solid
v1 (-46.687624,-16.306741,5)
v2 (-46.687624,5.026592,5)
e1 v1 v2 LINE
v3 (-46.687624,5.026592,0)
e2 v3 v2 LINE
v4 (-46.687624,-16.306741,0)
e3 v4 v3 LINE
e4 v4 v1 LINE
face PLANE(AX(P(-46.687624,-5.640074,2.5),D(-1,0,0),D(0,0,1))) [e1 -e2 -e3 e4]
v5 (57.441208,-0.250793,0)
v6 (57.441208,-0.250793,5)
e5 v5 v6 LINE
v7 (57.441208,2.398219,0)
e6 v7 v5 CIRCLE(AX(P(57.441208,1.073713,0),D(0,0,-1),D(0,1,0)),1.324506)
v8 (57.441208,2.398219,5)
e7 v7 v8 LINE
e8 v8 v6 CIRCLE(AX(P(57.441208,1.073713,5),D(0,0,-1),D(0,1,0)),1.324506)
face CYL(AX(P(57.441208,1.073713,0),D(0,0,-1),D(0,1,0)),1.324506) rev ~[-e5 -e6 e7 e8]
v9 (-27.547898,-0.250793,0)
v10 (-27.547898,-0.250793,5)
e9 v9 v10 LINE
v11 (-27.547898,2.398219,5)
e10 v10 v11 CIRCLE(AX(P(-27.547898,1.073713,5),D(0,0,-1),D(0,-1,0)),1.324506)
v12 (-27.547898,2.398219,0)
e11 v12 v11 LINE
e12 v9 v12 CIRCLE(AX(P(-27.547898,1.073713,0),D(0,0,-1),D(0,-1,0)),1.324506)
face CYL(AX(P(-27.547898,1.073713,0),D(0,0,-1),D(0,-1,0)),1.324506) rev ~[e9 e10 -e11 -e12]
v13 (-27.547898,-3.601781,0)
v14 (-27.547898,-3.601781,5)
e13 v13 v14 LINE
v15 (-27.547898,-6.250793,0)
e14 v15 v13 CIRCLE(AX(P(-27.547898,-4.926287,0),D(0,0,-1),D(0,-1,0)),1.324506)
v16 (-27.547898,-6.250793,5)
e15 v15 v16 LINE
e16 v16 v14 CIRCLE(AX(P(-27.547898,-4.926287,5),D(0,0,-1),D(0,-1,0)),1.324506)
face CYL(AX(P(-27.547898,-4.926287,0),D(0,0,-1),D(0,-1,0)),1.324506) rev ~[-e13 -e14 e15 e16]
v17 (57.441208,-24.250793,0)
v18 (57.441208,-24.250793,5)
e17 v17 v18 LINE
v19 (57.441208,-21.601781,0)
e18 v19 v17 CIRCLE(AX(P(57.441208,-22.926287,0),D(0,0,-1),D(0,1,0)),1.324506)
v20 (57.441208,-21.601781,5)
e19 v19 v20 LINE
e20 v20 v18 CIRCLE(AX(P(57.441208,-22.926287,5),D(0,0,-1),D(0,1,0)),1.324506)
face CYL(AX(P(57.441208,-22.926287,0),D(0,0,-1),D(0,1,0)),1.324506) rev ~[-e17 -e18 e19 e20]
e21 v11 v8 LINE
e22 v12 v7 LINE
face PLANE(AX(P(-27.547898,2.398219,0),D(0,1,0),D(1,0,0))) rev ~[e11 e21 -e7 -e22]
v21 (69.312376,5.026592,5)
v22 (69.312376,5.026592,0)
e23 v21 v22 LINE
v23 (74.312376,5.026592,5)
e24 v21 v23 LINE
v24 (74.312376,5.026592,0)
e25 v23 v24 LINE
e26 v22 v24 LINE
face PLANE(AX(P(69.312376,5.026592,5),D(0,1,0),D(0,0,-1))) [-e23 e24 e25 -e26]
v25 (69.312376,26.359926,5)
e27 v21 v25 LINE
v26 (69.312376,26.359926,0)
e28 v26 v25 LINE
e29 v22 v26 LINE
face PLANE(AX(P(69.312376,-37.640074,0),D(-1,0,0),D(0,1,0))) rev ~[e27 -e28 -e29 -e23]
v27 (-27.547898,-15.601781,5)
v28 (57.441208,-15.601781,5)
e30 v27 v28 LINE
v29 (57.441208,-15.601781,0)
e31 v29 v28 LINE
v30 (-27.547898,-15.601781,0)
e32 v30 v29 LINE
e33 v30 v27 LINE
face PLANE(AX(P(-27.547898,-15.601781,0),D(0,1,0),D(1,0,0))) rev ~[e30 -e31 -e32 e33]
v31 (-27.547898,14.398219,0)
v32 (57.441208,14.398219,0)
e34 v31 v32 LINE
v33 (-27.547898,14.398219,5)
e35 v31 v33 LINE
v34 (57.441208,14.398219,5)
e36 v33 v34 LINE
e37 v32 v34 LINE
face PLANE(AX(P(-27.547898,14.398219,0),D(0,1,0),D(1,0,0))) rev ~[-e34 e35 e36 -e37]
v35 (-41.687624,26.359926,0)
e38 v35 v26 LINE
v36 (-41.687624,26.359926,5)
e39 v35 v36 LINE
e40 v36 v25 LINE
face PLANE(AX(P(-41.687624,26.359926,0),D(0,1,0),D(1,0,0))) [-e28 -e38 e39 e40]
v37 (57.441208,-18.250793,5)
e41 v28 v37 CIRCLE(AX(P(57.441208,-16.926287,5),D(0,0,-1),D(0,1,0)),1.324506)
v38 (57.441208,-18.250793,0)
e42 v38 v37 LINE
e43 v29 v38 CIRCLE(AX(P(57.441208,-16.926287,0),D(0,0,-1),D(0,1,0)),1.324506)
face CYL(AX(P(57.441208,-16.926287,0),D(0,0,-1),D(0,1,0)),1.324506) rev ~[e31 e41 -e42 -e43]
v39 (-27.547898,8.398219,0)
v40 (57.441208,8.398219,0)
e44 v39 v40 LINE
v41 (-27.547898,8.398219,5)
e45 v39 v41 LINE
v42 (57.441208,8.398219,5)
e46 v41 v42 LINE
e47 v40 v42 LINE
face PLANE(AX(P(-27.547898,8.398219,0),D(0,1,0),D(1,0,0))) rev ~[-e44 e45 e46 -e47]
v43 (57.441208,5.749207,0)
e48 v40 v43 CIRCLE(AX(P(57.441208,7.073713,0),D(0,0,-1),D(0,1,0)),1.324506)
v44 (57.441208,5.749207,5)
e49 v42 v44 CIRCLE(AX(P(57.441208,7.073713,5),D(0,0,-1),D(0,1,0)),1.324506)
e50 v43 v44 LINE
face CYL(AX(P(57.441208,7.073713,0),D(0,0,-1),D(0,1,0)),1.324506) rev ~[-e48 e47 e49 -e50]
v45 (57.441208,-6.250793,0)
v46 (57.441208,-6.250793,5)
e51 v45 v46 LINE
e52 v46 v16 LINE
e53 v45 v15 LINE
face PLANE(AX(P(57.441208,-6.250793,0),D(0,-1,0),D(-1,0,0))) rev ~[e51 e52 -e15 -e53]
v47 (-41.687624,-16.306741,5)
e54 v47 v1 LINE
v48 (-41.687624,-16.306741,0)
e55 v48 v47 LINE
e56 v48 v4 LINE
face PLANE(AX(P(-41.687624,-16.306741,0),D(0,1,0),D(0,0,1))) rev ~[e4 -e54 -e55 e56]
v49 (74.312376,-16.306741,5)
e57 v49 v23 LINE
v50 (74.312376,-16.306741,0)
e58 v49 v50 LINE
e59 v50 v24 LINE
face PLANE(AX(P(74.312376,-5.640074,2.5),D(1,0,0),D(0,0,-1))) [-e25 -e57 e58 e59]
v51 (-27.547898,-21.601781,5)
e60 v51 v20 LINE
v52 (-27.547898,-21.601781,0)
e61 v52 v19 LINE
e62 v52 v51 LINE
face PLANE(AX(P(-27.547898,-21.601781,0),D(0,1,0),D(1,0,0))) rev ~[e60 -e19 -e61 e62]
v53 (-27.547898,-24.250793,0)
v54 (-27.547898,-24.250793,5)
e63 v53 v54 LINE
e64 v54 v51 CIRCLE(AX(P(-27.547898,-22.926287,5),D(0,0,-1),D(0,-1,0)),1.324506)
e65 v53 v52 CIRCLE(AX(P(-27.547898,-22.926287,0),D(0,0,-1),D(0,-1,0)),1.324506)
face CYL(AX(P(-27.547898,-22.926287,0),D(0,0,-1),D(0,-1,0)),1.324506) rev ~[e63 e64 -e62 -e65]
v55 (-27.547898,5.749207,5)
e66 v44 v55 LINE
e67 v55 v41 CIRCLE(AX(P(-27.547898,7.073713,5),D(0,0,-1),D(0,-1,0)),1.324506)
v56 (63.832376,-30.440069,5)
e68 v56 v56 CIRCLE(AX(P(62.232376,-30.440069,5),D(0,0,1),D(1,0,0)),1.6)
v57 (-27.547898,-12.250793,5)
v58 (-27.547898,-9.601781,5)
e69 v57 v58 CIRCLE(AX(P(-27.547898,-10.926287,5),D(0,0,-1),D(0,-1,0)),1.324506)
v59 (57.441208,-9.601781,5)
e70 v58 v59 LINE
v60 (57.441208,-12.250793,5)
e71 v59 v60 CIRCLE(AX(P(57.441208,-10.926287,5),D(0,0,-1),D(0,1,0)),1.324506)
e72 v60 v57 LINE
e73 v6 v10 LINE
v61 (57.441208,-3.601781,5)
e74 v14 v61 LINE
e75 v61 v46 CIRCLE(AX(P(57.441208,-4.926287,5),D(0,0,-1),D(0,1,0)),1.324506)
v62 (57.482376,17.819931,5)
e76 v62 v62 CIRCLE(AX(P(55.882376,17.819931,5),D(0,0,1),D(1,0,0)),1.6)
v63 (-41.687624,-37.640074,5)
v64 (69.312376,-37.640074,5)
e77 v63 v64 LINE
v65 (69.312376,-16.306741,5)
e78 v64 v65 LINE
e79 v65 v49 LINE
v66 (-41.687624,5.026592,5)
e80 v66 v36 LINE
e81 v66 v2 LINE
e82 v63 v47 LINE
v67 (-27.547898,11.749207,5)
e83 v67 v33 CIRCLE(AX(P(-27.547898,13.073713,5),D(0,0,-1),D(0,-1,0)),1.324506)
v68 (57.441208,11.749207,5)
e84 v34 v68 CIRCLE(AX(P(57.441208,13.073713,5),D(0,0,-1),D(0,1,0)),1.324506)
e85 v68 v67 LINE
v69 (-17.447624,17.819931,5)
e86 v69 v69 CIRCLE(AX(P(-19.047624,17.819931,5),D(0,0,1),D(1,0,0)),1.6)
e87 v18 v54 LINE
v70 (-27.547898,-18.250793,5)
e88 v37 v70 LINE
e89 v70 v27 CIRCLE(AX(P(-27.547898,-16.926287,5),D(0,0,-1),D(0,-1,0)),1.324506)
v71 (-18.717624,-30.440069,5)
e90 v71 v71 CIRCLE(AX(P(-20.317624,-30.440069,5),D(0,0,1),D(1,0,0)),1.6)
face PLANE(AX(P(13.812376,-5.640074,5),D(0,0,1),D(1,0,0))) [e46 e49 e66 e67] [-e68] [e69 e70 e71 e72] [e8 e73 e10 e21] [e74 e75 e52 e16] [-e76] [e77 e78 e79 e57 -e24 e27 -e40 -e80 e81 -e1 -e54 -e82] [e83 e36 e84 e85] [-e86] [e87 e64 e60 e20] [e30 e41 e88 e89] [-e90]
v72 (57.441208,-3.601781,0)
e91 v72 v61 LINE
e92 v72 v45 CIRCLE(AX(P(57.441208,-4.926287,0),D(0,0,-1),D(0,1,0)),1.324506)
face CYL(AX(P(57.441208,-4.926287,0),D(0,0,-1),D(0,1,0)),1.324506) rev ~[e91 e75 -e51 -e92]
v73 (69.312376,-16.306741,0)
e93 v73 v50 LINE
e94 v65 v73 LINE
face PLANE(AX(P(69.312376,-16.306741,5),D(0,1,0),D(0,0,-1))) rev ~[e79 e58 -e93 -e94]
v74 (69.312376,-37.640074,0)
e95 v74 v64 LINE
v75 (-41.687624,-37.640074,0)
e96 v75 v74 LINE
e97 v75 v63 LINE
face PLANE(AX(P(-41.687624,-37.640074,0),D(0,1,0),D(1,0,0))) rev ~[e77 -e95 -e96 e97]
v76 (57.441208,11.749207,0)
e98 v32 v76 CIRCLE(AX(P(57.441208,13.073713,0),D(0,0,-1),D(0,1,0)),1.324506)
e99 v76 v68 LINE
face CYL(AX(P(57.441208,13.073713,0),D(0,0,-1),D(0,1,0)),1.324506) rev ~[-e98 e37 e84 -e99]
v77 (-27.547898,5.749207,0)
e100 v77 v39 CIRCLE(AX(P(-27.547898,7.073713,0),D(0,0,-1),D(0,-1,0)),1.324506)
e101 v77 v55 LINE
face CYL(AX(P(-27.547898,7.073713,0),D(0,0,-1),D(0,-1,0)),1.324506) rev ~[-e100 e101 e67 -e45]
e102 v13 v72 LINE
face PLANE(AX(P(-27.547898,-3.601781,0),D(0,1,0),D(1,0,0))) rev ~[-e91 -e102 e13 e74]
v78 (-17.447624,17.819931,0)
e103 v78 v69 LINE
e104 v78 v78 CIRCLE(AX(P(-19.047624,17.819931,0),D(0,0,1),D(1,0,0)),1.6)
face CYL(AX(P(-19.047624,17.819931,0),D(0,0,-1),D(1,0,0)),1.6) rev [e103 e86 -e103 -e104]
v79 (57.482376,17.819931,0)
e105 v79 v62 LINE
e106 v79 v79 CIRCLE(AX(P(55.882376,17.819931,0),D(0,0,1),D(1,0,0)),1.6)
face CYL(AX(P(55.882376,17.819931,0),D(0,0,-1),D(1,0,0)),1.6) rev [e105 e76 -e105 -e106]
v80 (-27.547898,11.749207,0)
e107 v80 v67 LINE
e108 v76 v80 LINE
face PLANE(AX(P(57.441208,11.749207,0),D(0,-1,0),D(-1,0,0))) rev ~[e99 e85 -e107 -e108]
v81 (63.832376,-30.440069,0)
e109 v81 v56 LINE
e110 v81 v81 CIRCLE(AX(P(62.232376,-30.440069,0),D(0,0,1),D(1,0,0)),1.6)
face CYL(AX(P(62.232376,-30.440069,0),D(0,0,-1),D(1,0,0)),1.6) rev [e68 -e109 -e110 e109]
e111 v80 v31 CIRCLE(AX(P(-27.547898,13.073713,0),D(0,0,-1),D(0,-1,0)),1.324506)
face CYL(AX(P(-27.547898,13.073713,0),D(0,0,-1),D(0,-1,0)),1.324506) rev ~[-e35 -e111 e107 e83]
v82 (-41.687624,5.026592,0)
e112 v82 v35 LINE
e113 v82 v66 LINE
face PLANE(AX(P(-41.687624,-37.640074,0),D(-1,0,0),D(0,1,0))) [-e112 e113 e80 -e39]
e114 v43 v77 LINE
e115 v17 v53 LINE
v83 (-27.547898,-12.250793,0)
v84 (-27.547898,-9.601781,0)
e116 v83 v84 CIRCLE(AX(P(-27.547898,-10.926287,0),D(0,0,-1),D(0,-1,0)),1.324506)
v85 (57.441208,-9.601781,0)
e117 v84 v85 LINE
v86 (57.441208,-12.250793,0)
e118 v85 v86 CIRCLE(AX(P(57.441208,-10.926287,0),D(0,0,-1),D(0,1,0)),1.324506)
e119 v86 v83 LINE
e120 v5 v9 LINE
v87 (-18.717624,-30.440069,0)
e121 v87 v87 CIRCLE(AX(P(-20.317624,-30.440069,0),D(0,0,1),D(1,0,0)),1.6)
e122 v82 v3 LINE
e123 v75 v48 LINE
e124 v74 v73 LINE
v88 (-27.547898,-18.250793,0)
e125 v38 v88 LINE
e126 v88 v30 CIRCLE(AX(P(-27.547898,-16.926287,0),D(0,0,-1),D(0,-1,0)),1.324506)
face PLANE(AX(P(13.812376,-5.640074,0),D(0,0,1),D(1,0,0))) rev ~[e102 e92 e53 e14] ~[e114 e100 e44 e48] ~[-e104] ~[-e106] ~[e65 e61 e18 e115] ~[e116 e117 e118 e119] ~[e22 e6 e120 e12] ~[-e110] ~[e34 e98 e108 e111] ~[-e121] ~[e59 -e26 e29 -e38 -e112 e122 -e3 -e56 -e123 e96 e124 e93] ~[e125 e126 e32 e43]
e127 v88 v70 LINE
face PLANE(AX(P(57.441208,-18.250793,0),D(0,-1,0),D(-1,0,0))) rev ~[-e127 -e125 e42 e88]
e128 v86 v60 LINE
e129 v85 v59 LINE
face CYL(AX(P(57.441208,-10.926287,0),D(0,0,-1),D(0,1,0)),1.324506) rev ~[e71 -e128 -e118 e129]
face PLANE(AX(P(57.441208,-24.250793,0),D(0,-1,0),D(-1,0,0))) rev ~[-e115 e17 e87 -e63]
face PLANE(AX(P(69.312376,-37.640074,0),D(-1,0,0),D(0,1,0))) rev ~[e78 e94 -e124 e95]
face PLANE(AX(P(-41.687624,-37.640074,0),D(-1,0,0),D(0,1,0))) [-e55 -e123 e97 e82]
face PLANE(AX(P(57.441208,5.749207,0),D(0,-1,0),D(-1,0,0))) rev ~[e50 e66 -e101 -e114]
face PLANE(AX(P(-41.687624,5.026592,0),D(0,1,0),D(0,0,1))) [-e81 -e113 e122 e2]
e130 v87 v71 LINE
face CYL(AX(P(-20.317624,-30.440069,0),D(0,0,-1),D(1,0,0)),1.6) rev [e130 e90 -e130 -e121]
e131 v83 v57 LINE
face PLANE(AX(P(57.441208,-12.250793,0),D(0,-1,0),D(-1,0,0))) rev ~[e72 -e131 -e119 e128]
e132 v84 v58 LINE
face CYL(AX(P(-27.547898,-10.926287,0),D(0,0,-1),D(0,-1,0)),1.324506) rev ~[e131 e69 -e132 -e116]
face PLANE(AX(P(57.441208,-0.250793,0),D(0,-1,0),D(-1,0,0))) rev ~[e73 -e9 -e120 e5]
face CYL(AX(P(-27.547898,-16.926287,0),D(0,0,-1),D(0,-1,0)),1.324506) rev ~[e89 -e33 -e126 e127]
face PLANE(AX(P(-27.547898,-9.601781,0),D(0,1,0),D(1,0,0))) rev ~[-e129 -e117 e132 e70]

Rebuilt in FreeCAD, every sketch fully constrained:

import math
import FreeCAD as App
import Part
import Sketcher

V = App.Vector


def add_polygon(sketch, points):
    """Adds a closed chain of lines whose ends are joined by coincident constraints."""
    first, n = sketch.GeometryCount, len(points)
    for a, b in zip(points, points[1:] + points[:1]):
        sketch.addGeometry(Part.LineSegment(App.Vector(*a, 0), App.Vector(*b, 0)), False)
    for i in range(n):
        sketch.addConstraint(Sketcher.Constraint("Coincident", first + i, 2, first + (i + 1) % n, 1))

doc = App.newDocument("Part")
body = doc.addObject("PartDesign::Body", "Body")

# Sketch on XY plane
sketch1 = body.newObject("Sketcher::SketchObject", "Sketch")
sketch1.AttachmentSupport = (doc.getObject("XY_Plane"), [""])
sketch1.MapMode = "FlatFace"
add_polygon(sketch1, [(-41.687624, 26.359926), (-41.687624, -37.640074), (69.312376, -37.640074), (69.312376, 26.359926)])  # lines 0-3
sketch1.addGeometry(Part.Circle(V(-20.317624, -30.440069, 0), V(0, 0, 1), 1.6), False)  # 4
sketch1.addGeometry(Part.ArcOfCircle(Part.Circle(V(-27.547898, -22.926287, 0), V(0, 0, 1), 1.324506), math.radians(90), math.radians(270)), False)  # 5
sketch1.addGeometry(Part.LineSegment(V(-27.547898, -21.601781, 0), V(57.441208, -21.601781, 0)), False)  # 6
sketch1.addGeometry(Part.ArcOfCircle(Part.Circle(V(57.441208, -22.926287, 0), V(0, 0, 1), 1.324506), math.radians(-90), math.radians(90)), False)  # 7
sketch1.addGeometry(Part.LineSegment(V(57.441208, -24.250793, 0), V(-27.547898, -24.250793, 0)), False)  # 8
sketch1.addGeometry(Part.ArcOfCircle(Part.Circle(V(-27.547898, -16.926287, 0), V(0, 0, 1), 1.324506), math.radians(90), math.radians(270)), False)  # 9
sketch1.addGeometry(Part.LineSegment(V(-27.547898, -15.601781, 0), V(57.441208, -15.601781, 0)), False)  # 10
sketch1.addGeometry(Part.ArcOfCircle(Part.Circle(V(57.441208, -16.926287, 0), V(0, 0, 1), 1.324506), math.radians(-90), math.radians(90)), False)  # 11
sketch1.addGeometry(Part.LineSegment(V(57.441208, -18.250793, 0), V(-27.547898, -18.250793, 0)), False)  # 12
sketch1.addGeometry(Part.ArcOfCircle(Part.Circle(V(-27.547898, -10.926287, 0), V(0, 0, 1), 1.324506), math.radians(90), math.radians(270)), False)  # 13
sketch1.addGeometry(Part.LineSegment(V(-27.547898, -9.601781, 0), V(57.441208, -9.601781, 0)), False)  # 14
sketch1.addGeometry(Part.ArcOfCircle(Part.Circle(V(57.441208, -10.926287, 0), V(0, 0, 1), 1.324506), math.radians(-90), math.radians(90)), False)  # 15
sketch1.addGeometry(Part.LineSegment(V(57.441208, -12.250793, 0), V(-27.547898, -12.250793, 0)), False)  # 16
sketch1.addGeometry(Part.Circle(V(62.232376, -30.440069, 0), V(0, 0, 1), 1.6), False)  # 17
sketch1.addGeometry(Part.ArcOfCircle(Part.Circle(V(-27.547898, -4.926287, 0), V(0, 0, 1), 1.324506), math.radians(90), math.radians(270)), False)  # 18
sketch1.addGeometry(Part.LineSegment(V(-27.547898, -3.601781, 0), V(57.441208, -3.601781, 0)), False)  # 19
sketch1.addGeometry(Part.ArcOfCircle(Part.Circle(V(57.441208, -4.926287, 0), V(0, 0, 1), 1.324506), math.radians(-90), math.radians(90)), False)  # 20
sketch1.addGeometry(Part.LineSegment(V(57.441208, -6.250793, 0), V(-27.547898, -6.250793, 0)), False)  # 21
sketch1.addGeometry(Part.ArcOfCircle(Part.Circle(V(-27.547898, 1.073713, 0), V(0, 0, 1), 1.324506), math.radians(90), math.radians(270)), False)  # 22
sketch1.addGeometry(Part.LineSegment(V(-27.547898, 2.398219, 0), V(57.441208, 2.398219, 0)), False)  # 23
sketch1.addGeometry(Part.ArcOfCircle(Part.Circle(V(57.441208, 1.073713, 0), V(0, 0, 1), 1.324506), math.radians(-90), math.radians(90)), False)  # 24
sketch1.addGeometry(Part.LineSegment(V(57.441208, -0.250793, 0), V(-27.547898, -0.250793, 0)), False)  # 25
sketch1.addGeometry(Part.Circle(V(-19.047624, 17.819931, 0), V(0, 0, 1), 1.6), False)  # 26
sketch1.addGeometry(Part.ArcOfCircle(Part.Circle(V(-27.547898, 7.073713, 0), V(0, 0, 1), 1.324506), math.radians(90), math.radians(270)), False)  # 27
sketch1.addGeometry(Part.LineSegment(V(-27.547898, 8.398219, 0), V(57.441208, 8.398219, 0)), False)  # 28
sketch1.addGeometry(Part.ArcOfCircle(Part.Circle(V(57.441208, 7.073713, 0), V(0, 0, 1), 1.324506), math.radians(-90), math.radians(90)), False)  # 29
sketch1.addGeometry(Part.LineSegment(V(57.441208, 5.749207, 0), V(-27.547898, 5.749207, 0)), False)  # 30
sketch1.addGeometry(Part.ArcOfCircle(Part.Circle(V(-27.547898, 13.073713, 0), V(0, 0, 1), 1.324506), math.radians(90), math.radians(270)), False)  # 31
sketch1.addGeometry(Part.LineSegment(V(-27.547898, 14.398219, 0), V(57.441208, 14.398219, 0)), False)  # 32
sketch1.addGeometry(Part.ArcOfCircle(Part.Circle(V(57.441208, 13.073713, 0), V(0, 0, 1), 1.324506), math.radians(-90), math.radians(90)), False)  # 33
sketch1.addGeometry(Part.LineSegment(V(57.441208, 11.749207, 0), V(-27.547898, 11.749207, 0)), False)  # 34
sketch1.addGeometry(Part.Circle(V(55.882376, 17.819931, 0), V(0, 0, 1), 1.6), False)  # 35
sketch1.addConstraint([
    Sketcher.Constraint("Tangent", 5, 1, 6, 1),
    Sketcher.Constraint("Tangent", 6, 2, 7, 2),
    Sketcher.Constraint("Tangent", 7, 1, 8, 1),
    Sketcher.Constraint("Tangent", 8, 2, 5, 2),
    Sketcher.Constraint("Tangent", 9, 1, 10, 1),
    Sketcher.Constraint("Tangent", 10, 2, 11, 2),
    Sketcher.Constraint("Tangent", 11, 1, 12, 1),
    Sketcher.Constraint("Tangent", 12, 2, 9, 2),
    Sketcher.Constraint("Tangent", 13, 1, 14, 1),
    Sketcher.Constraint("Tangent", 14, 2, 15, 2),
    Sketcher.Constraint("Tangent", 15, 1, 16, 1),
    Sketcher.Constraint("Tangent", 16, 2, 13, 2),
    Sketcher.Constraint("Tangent", 18, 1, 19, 1),
    Sketcher.Constraint("Tangent", 19, 2, 20, 2),
    Sketcher.Constraint("Tangent", 20, 1, 21, 1),
    Sketcher.Constraint("Tangent", 21, 2, 18, 2),
    Sketcher.Constraint("Tangent", 22, 1, 23, 1),
    Sketcher.Constraint("Tangent", 23, 2, 24, 2),
    Sketcher.Constraint("Tangent", 24, 1, 25, 1),
    Sketcher.Constraint("Tangent", 25, 2, 22, 2),
    Sketcher.Constraint("Tangent", 27, 1, 28, 1),
    Sketcher.Constraint("Tangent", 28, 2, 29, 2),
    Sketcher.Constraint("Tangent", 29, 1, 30, 1),
    Sketcher.Constraint("Tangent", 30, 2, 27, 2),
    Sketcher.Constraint("Tangent", 31, 1, 32, 1),
    Sketcher.Constraint("Tangent", 32, 2, 33, 2),
    Sketcher.Constraint("Tangent", 33, 1, 34, 1),
    Sketcher.Constraint("Tangent", 34, 2, 31, 2),
    Sketcher.Constraint("Vertical", 0),
    Sketcher.Constraint("Horizontal", 1),
    Sketcher.Constraint("Vertical", 2),
    Sketcher.Constraint("Horizontal", 3),
    Sketcher.Constraint("Horizontal", 6),
    Sketcher.Constraint("Horizontal", 8),
    Sketcher.Constraint("Horizontal", 10),
    Sketcher.Constraint("Horizontal", 12),
    Sketcher.Constraint("Horizontal", 14),
    Sketcher.Constraint("Horizontal", 16),
    Sketcher.Constraint("Horizontal", 19),
    Sketcher.Constraint("Horizontal", 21),
    Sketcher.Constraint("Horizontal", 23),
    Sketcher.Constraint("Horizontal", 25),
    Sketcher.Constraint("Horizontal", 28),
    Sketcher.Constraint("Horizontal", 30),
    Sketcher.Constraint("Horizontal", 32),
    Sketcher.Constraint("Horizontal", 34),
    Sketcher.Constraint("Equal", 7, 9),
    Sketcher.Constraint("Equal", 11, 13),
    Sketcher.Constraint("Equal", 4, 17),
    Sketcher.Constraint("Equal", 15, 18),
    Sketcher.Constraint("Equal", 20, 22),
    Sketcher.Constraint("Equal", 17, 26),
    Sketcher.Constraint("Equal", 24, 27),
    Sketcher.Constraint("Equal", 29, 31),
    Sketcher.Constraint("Equal", 26, 35),
    Sketcher.Constraint("Horizontal", 4, 3, 17, 3),
    Sketcher.Constraint("Horizontal", 26, 3, 35, 3),
    Sketcher.Constraint("Vertical", 5, 3, 9, 3),
    Sketcher.Constraint("Vertical", 7, 3, 11, 3),
    Sketcher.Constraint("Vertical", 9, 3, 13, 3),
    Sketcher.Constraint("Vertical", 11, 3, 15, 3),
    Sketcher.Constraint("Vertical", 13, 3, 18, 3),
    Sketcher.Constraint("Vertical", 15, 3, 20, 3),
    Sketcher.Constraint("Vertical", 18, 3, 22, 3),
    Sketcher.Constraint("Vertical", 20, 3, 24, 3),
    Sketcher.Constraint("Vertical", 22, 3, 27, 3),
    Sketcher.Constraint("Vertical", 24, 3, 29, 3),
    Sketcher.Constraint("Vertical", 27, 3, 31, 3),
    Sketcher.Constraint("Vertical", 29, 3, 33, 3),
    Sketcher.Constraint("Diameter", 4, 3.2),
    Sketcher.Constraint("DistanceX", 1, 1, 1, 2, 111.0),
    Sketcher.Constraint("DistanceY", 0, 2, 0, 1, 64.0),
    Sketcher.Constraint("DistanceY", 5, 3, 9, 3, 6.0),
    Sketcher.Constraint("DistanceY", 9, 3, 13, 3, 6.0),
    Sketcher.Constraint("DistanceY", 13, 3, 18, 3, 6.0),
    Sketcher.Constraint("DistanceY", 18, 3, 22, 3, 6.0),
    Sketcher.Constraint("DistanceY", 22, 3, 27, 3, 6.0),
    Sketcher.Constraint("DistanceY", 27, 3, 31, 3, 6.0),
    Sketcher.Constraint("DistanceX", 4, 3, 17, 3, 82.55),
    Sketcher.Constraint("DistanceX", 0, 2, 4, 3, 21.37),
    Sketcher.Constraint("DistanceX", 35, 3, 2, 2, 13.43),
    Sketcher.Constraint("DistanceX", 3, 2, 26, 3, 22.64),
    Sketcher.Constraint("Radius", 5, 1.324506),
    Sketcher.Constraint("DistanceX", 6, 1, 6, 2, 84.989106),
    Sketcher.Constraint("DistanceY", 4, 3, -1, 1, 30.440069),
    Sketcher.Constraint("DistanceX", -1, 1, 7, 3, 57.441208),
    Sketcher.Constraint("DistanceY", -1, 1, 26, 3, 17.819931),
    Sketcher.Constraint("DistanceY", 5, 1, -1, 1, 21.601781),
    Sketcher.Constraint("DistanceX", 4, 3, -1, 1, 20.317624),
    Sketcher.Constraint("DistanceY", 0, 2, -1, 1, 37.640074),
])
pad1 = body.newObject("PartDesign::Pad", "Pad")
pad1.Profile = sketch1
pad1.Length = 5

# Sketch on YZ plane
sketch2 = body.newObject("Sketcher::SketchObject", "Sketch001")
sketch2.AttachmentSupport = (doc.getObject("YZ_Plane"), [""])
sketch2.MapMode = "FlatFace"
sketch2.AttachmentOffset = App.Placement(V(0, 0, -41.687624), App.Rotation())
add_polygon(sketch2, [(5.026592, 0), (-16.306741, 0), (-16.306741, 5), (5.026592, 5)])  # lines 0-3
sketch2.addConstraint([
    Sketcher.Constraint("Horizontal", 0),
    Sketcher.Constraint("Vertical", 1),
    Sketcher.Constraint("Horizontal", 2),
    Sketcher.Constraint("Vertical", 3),
    Sketcher.Constraint("PointOnObject", 0, 2, -1),
    Sketcher.Constraint("DistanceY", 1, 1, 1, 2, 5.0),
    Sketcher.Constraint("DistanceX", 0, 2, 0, 1, 21.333333),
    Sketcher.Constraint("DistanceX", 0, 2, -1, 1, 16.306741),
])
pad2 = body.newObject("PartDesign::Pad", "Pad001")
pad2.Profile = sketch2
pad2.Length = 5
pad2.Reversed = True

# Sketch on YZ plane
sketch3 = body.newObject("Sketcher::SketchObject", "Sketch002")
sketch3.AttachmentSupport = (doc.getObject("YZ_Plane"), [""])
sketch3.MapMode = "FlatFace"
sketch3.AttachmentOffset = App.Placement(V(0, 0, 69.312376), App.Rotation())
add_polygon(sketch3, [(5.026592, 5), (-16.306741, 5), (-16.306741, 0), (5.026592, 0)])  # lines 0-3
sketch3.addConstraint([
    Sketcher.Constraint("Horizontal", 0),
    Sketcher.Constraint("Vertical", 1),
    Sketcher.Constraint("Horizontal", 2),
    Sketcher.Constraint("Vertical", 3),
    Sketcher.Constraint("PointOnObject", 1, 2, -1),
    Sketcher.Constraint("DistanceY", 1, 2, 1, 1, 5.0),
    Sketcher.Constraint("DistanceX", 0, 2, 0, 1, 21.333333),
    Sketcher.Constraint("DistanceX", 0, 2, -1, 1, 16.306741),
])
pad3 = body.newObject("PartDesign::Pad", "Pad002")
pad3.Profile = sketch3
pad3.Length = 5

doc.recompute()
